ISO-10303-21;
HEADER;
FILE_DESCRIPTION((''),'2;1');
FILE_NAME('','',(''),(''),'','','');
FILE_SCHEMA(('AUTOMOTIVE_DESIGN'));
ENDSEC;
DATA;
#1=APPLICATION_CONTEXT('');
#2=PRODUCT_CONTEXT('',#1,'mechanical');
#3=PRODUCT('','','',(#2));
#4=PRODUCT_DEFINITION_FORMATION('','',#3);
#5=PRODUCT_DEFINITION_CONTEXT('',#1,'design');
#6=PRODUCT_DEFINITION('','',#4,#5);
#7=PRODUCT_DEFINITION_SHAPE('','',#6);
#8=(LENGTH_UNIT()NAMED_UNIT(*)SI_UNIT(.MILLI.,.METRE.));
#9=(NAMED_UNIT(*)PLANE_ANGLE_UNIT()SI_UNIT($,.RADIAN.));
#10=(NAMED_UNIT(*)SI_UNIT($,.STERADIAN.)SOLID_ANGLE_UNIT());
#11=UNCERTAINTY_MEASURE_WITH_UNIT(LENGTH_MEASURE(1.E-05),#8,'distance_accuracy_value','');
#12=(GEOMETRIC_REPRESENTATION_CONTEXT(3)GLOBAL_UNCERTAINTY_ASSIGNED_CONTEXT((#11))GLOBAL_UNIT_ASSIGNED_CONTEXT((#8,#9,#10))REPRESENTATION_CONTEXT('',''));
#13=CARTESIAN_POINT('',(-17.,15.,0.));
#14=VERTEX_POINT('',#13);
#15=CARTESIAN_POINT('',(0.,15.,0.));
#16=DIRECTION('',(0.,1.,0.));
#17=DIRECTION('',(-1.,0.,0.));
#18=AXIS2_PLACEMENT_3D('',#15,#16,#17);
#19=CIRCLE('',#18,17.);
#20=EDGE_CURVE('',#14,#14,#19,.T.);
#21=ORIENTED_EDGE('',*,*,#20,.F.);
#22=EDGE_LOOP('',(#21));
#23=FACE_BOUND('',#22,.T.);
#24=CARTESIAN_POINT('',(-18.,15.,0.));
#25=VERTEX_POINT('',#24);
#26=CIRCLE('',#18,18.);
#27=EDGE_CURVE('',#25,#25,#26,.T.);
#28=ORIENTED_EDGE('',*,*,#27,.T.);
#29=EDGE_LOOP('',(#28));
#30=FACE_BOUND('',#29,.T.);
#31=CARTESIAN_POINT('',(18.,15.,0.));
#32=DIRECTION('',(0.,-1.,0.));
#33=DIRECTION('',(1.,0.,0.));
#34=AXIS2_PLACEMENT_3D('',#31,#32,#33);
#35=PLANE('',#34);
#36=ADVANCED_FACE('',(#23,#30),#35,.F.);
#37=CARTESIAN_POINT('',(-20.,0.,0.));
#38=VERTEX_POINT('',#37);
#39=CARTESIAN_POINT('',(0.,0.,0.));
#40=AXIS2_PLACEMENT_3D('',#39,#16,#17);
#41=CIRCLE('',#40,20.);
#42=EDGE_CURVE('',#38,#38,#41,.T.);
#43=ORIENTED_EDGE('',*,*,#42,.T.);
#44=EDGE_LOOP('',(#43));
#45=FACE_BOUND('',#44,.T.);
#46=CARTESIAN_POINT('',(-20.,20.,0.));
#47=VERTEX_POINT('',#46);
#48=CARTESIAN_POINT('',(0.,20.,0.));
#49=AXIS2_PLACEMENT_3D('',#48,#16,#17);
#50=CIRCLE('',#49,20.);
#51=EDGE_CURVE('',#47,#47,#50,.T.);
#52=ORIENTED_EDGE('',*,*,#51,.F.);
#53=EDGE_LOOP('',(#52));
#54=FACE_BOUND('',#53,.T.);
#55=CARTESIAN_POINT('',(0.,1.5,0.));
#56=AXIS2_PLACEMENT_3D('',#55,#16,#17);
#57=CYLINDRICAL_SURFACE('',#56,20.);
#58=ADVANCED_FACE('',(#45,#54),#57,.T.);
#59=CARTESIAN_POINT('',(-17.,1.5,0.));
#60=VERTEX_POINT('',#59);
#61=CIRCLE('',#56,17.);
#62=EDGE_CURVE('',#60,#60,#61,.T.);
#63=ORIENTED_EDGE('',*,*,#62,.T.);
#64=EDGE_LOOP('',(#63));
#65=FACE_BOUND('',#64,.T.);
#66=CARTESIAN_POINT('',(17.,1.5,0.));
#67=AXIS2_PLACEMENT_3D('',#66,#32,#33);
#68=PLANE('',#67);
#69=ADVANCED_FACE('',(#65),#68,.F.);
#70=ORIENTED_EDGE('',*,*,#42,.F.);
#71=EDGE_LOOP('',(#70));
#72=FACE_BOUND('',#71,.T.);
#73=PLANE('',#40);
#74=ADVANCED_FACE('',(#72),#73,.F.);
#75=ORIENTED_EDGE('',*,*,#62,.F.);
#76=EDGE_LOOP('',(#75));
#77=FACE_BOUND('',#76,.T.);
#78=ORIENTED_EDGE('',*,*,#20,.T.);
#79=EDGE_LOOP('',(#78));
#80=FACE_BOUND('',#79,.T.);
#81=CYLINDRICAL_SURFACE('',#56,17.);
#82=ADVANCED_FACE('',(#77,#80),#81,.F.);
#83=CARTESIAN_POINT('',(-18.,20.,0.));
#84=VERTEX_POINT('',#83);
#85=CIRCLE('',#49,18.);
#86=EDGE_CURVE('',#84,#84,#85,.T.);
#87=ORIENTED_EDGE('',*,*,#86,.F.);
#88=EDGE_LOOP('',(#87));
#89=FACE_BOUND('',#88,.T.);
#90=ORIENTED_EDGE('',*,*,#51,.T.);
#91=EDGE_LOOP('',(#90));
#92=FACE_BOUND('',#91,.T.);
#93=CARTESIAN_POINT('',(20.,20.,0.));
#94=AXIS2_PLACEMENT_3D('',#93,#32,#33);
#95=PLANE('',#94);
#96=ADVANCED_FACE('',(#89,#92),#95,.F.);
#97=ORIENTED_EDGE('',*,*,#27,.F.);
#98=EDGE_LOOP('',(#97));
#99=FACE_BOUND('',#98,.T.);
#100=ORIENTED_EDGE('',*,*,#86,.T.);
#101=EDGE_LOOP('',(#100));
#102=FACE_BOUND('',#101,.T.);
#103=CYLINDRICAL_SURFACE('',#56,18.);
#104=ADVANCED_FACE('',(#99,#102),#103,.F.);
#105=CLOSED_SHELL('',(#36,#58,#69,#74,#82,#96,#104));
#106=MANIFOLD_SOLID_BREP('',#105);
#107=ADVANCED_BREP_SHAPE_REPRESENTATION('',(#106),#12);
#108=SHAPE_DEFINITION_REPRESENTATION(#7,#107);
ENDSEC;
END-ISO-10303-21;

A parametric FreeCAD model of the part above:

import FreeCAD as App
import Part
import Sketcher

V = App.Vector
Q = App.Units.Quantity

doc = App.newDocument("Part")
body = doc.addObject("PartDesign::Body", "Body")

sketch1 = body.newObject("Sketcher::SketchObject", "Sketch")
sketch1.AttachmentSupport = (doc.getObject("XY_Plane"), [""])
sketch1.MapMode = "FlatFace"
sketch1.addGeometry([
    Part.LineSegment(V(0, 0, 0), V(20, 0, 0)),
    Part.LineSegment(V(20, 0, 0), V(20, 20, 0)),
    Part.LineSegment(V(20, 20, 0), V(18, 20, 0)),
    Part.LineSegment(V(18, 20, 0), V(18, 15, 0)),
    Part.LineSegment(V(18, 15, 0), V(17, 15, 0)),
    Part.LineSegment(V(17, 15, 0), V(17, 1.5, 0)),
    Part.LineSegment(V(17, 1.5, 0), V(0, 1.5, 0)),
    Part.LineSegment(V(0, 1.5, 0), V(0, 0, 0)),
], False)
sketch1.addConstraint([
    Sketcher.Constraint("Coincident", 0, 2, 1, 1),
    Sketcher.Constraint("Coincident", 1, 2, 2, 1),
    Sketcher.Constraint("Coincident", 2, 2, 3, 1),
    Sketcher.Constraint("Coincident", 3, 2, 4, 1),
    Sketcher.Constraint("Coincident", 4, 2, 5, 1),
    Sketcher.Constraint("Coincident", 5, 2, 6, 1),
    Sketcher.Constraint("Coincident", 6, 2, 7, 1),
    Sketcher.Constraint("Coincident", 7, 2, 0, 1),
    Sketcher.Constraint("Horizontal", 0),
    Sketcher.Constraint("Vertical", 1),
    Sketcher.Constraint("Horizontal", 2),
    Sketcher.Constraint("Vertical", 3),
    Sketcher.Constraint("Horizontal", 4),
    Sketcher.Constraint("Vertical", 5),
    Sketcher.Constraint("Horizontal", 6),
    Sketcher.Constraint("Vertical", 7),
    Sketcher.Constraint("Coincident", 7, 2, -1, 1),
    Sketcher.Constraint("Equal", 0, 1),
    Sketcher.Constraint("DistanceX", 0, 1, 0, 2, Q("20 mm")),
    Sketcher.Constraint("DistanceX", 2, 2, 2, 1, Q("2 mm")),
    Sketcher.Constraint("DistanceX", 4, 2, 4, 1, Q("1 mm")),
    Sketcher.Constraint("DistanceY", 3, 2, 3, 1, Q("5 mm")),
    Sketcher.Constraint("DistanceY", 5, 2, 5, 1, Q("13.5 mm")),
])
revolution = body.newObject("PartDesign::Revolution", "Revolution")
revolution.Profile = sketch1
revolution.ReferenceAxis = (sketch1, ["V_Axis"])
revolution.Angle = 360

doc.recompute()
